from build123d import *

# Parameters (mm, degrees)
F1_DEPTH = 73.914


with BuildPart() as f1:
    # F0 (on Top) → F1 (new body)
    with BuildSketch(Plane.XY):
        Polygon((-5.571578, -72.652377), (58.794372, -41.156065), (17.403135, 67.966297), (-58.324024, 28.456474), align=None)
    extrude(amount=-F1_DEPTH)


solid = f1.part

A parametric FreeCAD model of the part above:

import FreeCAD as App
import Part
import Sketcher

V = App.Vector
Q = App.Units.Quantity


def add_polygon(sketch, points):
    """Adds a closed chain of lines whose ends are joined by coincident constraints."""
    first, n = sketch.GeometryCount, len(points)
    for a, b in zip(points, points[1:] + points[:1]):
        sketch.addGeometry(Part.LineSegment(App.Vector(*a, 0), App.Vector(*b, 0)), False)
    for i in range(n):
        sketch.addConstraint(Sketcher.Constraint("Coincident", first + i, 2, first + (i + 1) % n, 1))

doc = App.newDocument("Part")
body = doc.addObject("PartDesign::Body", "Body")

# Sketch on XY plane
sketch1 = body.newObject("Sketcher::SketchObject", "Sketch")
sketch1.AttachmentSupport = (doc.getObject("XY_Plane"), [""])
sketch1.MapMode = "FlatFace"
add_polygon(sketch1, [(-6, -73), (59, -41), (17, 68), (-58, 28)])  # lines 0-3
sketch1.addConstraint(Sketcher.Constraint("Perpendicular", 2, 3))
sketch1.addConstraint(Sketcher.Constraint("DistanceY", 0, 2, 1, 2, 109.122362))
sketch1.addConstraint(Sketcher.Constraint("DistanceX", 2, 2, 1, 2, 75.727159))
sketch1.addConstraint(Sketcher.Constraint("DistanceY", 0, 2, 2, 2, 69.612539))
sketch1.addConstraint(Sketcher.Constraint("DistanceX", 3, 2, 0, 2, 64.36595))
sketch1.addConstraint(Sketcher.Constraint("DistanceY", 3, 2, 2, 2, 101.108851))
sketch1.addConstraint(Sketcher.Constraint("DistanceX", -1, 1, 0, 2, 58.794372))
sketch1.addConstraint(Sketcher.Constraint("DistanceY", 0, 2, -1, 1, 41.156065))
pad1 = body.newObject("PartDesign::Pad", "Pad")
pad1.Profile = sketch1
pad1.Length = Q("2.91 in")
pad1.Reversed = True

doc.recompute()
